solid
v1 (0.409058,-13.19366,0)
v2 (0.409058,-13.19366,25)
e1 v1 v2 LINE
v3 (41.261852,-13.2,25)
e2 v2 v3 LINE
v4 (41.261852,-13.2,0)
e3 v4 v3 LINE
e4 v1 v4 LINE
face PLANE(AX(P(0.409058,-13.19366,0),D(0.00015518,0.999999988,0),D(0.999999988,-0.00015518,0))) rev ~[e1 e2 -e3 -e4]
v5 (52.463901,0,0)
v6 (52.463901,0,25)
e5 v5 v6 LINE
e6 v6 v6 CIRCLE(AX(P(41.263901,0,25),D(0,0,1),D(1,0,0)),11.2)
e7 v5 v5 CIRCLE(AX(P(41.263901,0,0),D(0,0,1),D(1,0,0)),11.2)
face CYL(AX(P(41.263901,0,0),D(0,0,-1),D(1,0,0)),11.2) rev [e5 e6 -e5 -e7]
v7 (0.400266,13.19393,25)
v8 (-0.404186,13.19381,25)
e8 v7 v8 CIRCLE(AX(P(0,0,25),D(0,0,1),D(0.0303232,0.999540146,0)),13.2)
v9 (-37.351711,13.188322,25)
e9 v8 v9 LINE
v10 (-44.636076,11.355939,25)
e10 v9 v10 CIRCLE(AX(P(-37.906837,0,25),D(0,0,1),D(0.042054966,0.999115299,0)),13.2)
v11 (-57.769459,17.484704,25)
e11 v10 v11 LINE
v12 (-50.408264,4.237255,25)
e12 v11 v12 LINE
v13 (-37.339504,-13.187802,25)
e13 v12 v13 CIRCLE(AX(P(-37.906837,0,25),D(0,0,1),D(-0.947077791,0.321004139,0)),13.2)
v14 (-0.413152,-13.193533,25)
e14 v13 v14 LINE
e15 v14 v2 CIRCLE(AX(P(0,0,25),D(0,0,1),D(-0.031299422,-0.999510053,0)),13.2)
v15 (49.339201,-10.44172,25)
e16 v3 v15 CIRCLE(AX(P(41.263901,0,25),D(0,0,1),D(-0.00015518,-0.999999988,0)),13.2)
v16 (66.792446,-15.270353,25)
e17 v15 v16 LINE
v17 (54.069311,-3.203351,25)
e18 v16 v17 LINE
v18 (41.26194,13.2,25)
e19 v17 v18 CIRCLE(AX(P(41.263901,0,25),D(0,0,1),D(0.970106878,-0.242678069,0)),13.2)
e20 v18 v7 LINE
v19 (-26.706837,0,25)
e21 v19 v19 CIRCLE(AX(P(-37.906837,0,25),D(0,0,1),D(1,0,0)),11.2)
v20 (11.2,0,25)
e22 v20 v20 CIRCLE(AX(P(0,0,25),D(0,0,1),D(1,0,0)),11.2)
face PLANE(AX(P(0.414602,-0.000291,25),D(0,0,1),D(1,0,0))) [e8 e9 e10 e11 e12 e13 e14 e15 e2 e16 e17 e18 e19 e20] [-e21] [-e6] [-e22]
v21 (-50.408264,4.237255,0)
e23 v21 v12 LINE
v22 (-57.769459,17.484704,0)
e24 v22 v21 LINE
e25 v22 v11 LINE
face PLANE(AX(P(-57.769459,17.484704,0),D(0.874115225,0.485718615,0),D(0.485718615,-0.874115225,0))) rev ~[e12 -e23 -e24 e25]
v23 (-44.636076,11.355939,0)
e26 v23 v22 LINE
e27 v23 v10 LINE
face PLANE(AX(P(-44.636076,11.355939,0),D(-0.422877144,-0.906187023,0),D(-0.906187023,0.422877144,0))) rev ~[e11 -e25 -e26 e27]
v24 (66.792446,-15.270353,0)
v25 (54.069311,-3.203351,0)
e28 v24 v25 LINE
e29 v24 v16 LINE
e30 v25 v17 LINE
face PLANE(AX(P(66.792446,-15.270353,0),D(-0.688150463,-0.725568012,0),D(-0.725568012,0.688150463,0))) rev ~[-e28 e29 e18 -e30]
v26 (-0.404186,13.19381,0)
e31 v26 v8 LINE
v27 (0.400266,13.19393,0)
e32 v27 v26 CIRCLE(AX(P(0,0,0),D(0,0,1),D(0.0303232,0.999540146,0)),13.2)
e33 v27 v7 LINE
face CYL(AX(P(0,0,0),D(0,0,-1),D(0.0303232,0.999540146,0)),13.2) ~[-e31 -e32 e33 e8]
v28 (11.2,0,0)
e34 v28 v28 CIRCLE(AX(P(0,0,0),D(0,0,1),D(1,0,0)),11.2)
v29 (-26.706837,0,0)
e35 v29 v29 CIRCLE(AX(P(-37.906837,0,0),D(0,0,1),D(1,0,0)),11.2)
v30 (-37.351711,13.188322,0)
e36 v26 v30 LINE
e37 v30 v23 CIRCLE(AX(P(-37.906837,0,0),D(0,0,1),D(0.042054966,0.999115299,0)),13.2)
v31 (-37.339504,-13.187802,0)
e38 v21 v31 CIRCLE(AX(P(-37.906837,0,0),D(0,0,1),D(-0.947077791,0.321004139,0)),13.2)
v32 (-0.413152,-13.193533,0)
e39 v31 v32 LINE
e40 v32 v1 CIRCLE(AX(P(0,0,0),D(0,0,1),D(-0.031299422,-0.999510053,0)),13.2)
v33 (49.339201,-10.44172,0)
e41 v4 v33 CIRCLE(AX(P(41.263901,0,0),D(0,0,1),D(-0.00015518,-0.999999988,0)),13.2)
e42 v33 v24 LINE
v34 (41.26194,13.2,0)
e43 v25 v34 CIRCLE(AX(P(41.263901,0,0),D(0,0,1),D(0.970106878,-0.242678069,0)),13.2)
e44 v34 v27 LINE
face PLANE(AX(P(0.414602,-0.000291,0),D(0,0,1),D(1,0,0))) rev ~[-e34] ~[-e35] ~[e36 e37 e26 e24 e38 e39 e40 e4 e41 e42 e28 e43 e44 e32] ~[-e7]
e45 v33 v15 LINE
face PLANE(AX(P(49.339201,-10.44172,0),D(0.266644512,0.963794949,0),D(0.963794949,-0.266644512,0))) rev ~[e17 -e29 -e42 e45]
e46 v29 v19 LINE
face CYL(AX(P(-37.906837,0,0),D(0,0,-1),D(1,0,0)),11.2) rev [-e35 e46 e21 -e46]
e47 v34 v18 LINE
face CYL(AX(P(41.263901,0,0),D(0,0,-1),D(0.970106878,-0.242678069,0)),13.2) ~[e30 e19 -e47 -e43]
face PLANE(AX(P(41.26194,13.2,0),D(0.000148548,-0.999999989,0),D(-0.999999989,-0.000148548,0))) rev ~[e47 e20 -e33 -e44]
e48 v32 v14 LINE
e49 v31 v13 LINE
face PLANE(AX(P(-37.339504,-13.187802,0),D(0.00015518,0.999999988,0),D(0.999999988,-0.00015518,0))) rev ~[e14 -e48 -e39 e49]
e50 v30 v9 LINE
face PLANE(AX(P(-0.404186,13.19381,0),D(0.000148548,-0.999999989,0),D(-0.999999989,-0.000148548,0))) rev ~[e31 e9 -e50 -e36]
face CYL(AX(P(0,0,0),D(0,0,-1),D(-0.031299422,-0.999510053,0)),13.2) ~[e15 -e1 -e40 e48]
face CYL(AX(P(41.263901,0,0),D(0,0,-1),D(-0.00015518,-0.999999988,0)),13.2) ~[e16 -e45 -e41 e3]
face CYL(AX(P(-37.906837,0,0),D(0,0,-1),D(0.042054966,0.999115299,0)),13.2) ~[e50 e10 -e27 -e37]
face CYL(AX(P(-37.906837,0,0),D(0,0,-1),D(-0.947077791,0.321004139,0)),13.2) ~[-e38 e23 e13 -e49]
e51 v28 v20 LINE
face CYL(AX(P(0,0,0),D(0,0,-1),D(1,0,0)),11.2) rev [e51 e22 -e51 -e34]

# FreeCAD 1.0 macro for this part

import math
import FreeCAD as App
import Part
import Sketcher

V = App.Vector
Q = App.Units.Quantity

doc = App.newDocument("Part")
params = doc.addObject("Spreadsheet::Sheet", "Params")
for row, (alias, value) in enumerate([
    ("sketch1_diameter", "22.4 mm"),
    ("sketch1_radius", "13.2 mm"),
    ("pad1_length", "25 mm"),
], start=1):
    params.set(f"A{row}", alias)
    params.set(f"B{row}", "=" + value)
    params.setAlias(f"B{row}", alias)

body = doc.addObject("PartDesign::Body", "Body")

# Sketch on XY plane
sketch1 = doc.addObject("Sketcher::SketchObject", "Sketch")
body.addObject(sketch1)
sketch1.AttachmentSupport = (doc.XY_Plane, [""])
sketch1.MapMode = "FlatFace"
sketch1.addGeometry(Part.LineSegment(V(0.409058, -13.19366, 0), V(41.261852, -13.2, 0)), False)
sketch1.addGeometry(Part.ArcOfCircle(Part.Circle(V(41.263901, 0, 0), V(0, 0, 1), 13.2), math.radians(-90.008891), math.radians(-52.282752)), False)
sketch1.addGeometry(Part.LineSegment(V(49.339201, -10.44172, 0), V(66.792446, -15.270353, 0)), False)
sketch1.addGeometry(Part.LineSegment(V(66.792446, -15.270353, 0), V(54.069311, -3.203351, 0)), False)
sketch1.addGeometry(Part.ArcOfCircle(Part.Circle(V(41.263901, 0, 0), V(0, 0, 1), 13.2), math.radians(-14.044656), math.radians(90.008511)), False)
sketch1.addGeometry(Part.LineSegment(V(41.26194, 13.2, 0), V(0.400266, 13.19393, 0)), False)
sketch1.addGeometry(Part.ArcOfCircle(Part.Circle(V(0, 0, 0), V(0, 0, 1), 13.2), math.radians(88.262342), math.radians(91.75468)), False)
sketch1.addGeometry(Part.LineSegment(V(-0.404186, 13.19381, 0), V(-37.351711, 13.188322, 0)), False)
sketch1.addGeometry(Part.ArcOfCircle(Part.Circle(V(-37.906837, 0, 0), V(0, 0, 1), 13.2), math.radians(87.589717), math.radians(120.649897)), False)
sketch1.addGeometry(Part.LineSegment(V(-44.636076, 11.355939, 0), V(-57.769459, 17.484704, 0)), False)
sketch1.addGeometry(Part.LineSegment(V(-57.769459, 17.484704, 0), V(-50.408264, 4.237255, 0)), False)
sketch1.addGeometry(Part.ArcOfCircle(Part.Circle(V(-37.906837, 0, 0), V(0, 0, 1), 13.2), math.radians(161.276338), math.radians(272.463317)), False)
sketch1.addGeometry(Part.LineSegment(V(-37.339504, -13.187802, 0), V(-0.413152, -13.193533, 0)), False)
sketch1.addGeometry(Part.ArcOfCircle(Part.Circle(V(0, 0, 0), V(0, 0, 1), 13.2), math.radians(-91.793618), math.radians(-88.224165)), False)
sketch1.addGeometry(Part.Circle(V(-37.906837, 0, 0), V(0, 0, 1), 11.2), False)
sketch1.addGeometry(Part.Circle(V(0, 0, 0), V(0, 0, 1), 11.2), False)
sketch1.addGeometry(Part.Circle(V(41.263901, 0, 0), V(0, 0, 1), 11.2), False)
sketch1.addConstraint(Sketcher.Constraint("Tangent", 0, 2, 1, 1))
sketch1.addConstraint(Sketcher.Constraint("Coincident", 1, 2, 2, 1))
sketch1.addConstraint(Sketcher.Constraint("Coincident", 2, 2, 3, 1))
sketch1.addConstraint(Sketcher.Constraint("Coincident", 3, 2, 4, 1))
sketch1.addConstraint(Sketcher.Constraint("Tangent", 4, 2, 5, 1))
sketch1.addConstraint(Sketcher.Constraint("Coincident", 5, 2, 6, 1))
sketch1.addConstraint(Sketcher.Constraint("Coincident", 6, 2, 7, 1))
sketch1.addConstraint(Sketcher.Constraint("Coincident", 7, 2, 8, 1))
sketch1.addConstraint(Sketcher.Constraint("Coincident", 8, 2, 9, 1))
sketch1.addConstraint(Sketcher.Constraint("Coincident", 9, 2, 10, 1))
sketch1.addConstraint(Sketcher.Constraint("Coincident", 10, 2, 11, 1))
sketch1.addConstraint(Sketcher.Constraint("Coincident", 11, 2, 12, 1))
sketch1.addConstraint(Sketcher.Constraint("Coincident", 12, 2, 13, 1))
sketch1.addConstraint(Sketcher.Constraint("Coincident", 13, 2, 0, 1))
sketch1.addConstraint(Sketcher.Constraint("Coincident", 6, 3, -1, 1))
sketch1.addConstraint(Sketcher.Constraint("Coincident", 13, 3, -1, 1))
sketch1.addConstraint(Sketcher.Constraint("Coincident", 15, 3, -1, 1))
sketch1.addConstraint(Sketcher.Constraint("Coincident", 4, 3, 1, 3))
sketch1.addConstraint(Sketcher.Constraint("Coincident", 11, 3, 8, 3))
sketch1.addConstraint(Sketcher.Constraint("Coincident", 14, 3, 8, 3))
sketch1.addConstraint(Sketcher.Constraint("Coincident", 16, 3, 1, 3))
sketch1.addConstraint(Sketcher.Constraint("Equal", 1, 4))
sketch1.addConstraint(Sketcher.Constraint("Equal", 4, 6))
sketch1.addConstraint(Sketcher.Constraint("Equal", 6, 8))
sketch1.addConstraint(Sketcher.Constraint("Equal", 8, 11))
sketch1.addConstraint(Sketcher.Constraint("Equal", 11, 13))
sketch1.addConstraint(Sketcher.Constraint("Equal", 14, 15))
sketch1.addConstraint(Sketcher.Constraint("Equal", 15, 16))
sketch1.addConstraint(Sketcher.Constraint("PointOnObject", 1, 3, -1))
sketch1.addConstraint(Sketcher.Constraint("PointOnObject", 8, 3, -1))
sketch1.addConstraint(Sketcher.Constraint("Parallel", 5, 7))
sketch1.addConstraint(Sketcher.Constraint("Parallel", 0, 12))
sketch1.addConstraint(Sketcher.Constraint("Diameter", 14, Q("22.4 mm")))
sketch1.addConstraint(Sketcher.Constraint("Radius", 1, Q("13.2 mm")))
sketch1.addConstraint(Sketcher.Constraint("DistanceX", -1, 1, 1, 3, Q("41.263901 mm")))
sketch1.addConstraint(Sketcher.Constraint("DistanceX", -1, 1, 1, 2, Q("49.339201 mm")))
sketch1.addConstraint(Sketcher.Constraint("DistanceX", -1, 1, 3, 2, Q("54.069311 mm")))
sketch1.addConstraint(Sketcher.Constraint("DistanceY", -1, 1, 5, 2, Q("13.19393 mm")))
sketch1.addConstraint(Sketcher.Constraint("DistanceY", -1, 1, 6, 2, Q("13.19381 mm")))
sketch1.addConstraint(Sketcher.Constraint("DistanceX", 7, 2, -1, 1, Q("37.351711 mm")))
sketch1.addConstraint(Sketcher.Constraint("DistanceY", -1, 1, 8, 2, Q("11.355939 mm")))
sketch1.addConstraint(Sketcher.Constraint("DistanceX", 9, 2, -1, 1, Q("57.769459 mm")))
sketch1.addConstraint(Sketcher.Constraint("DistanceY", 13, 2, -1, 1, Q("13.19366 mm")))
sketch1.addConstraint(Sketcher.Constraint("DistanceX", 10, 2, 8, 2, Q("5.772188 mm")))
sketch1.addConstraint(Sketcher.Constraint("DistanceY", 10, 2, 9, 2, Q("13.247449 mm")))
sketch1.addConstraint(Sketcher.Constraint("DistanceX", 10, 2, 11, 2, Q("13.06876 mm")))
sketch1.addConstraint(Sketcher.Constraint("Distance", 2, Q("18.108878 mm")))
sketch1.addConstraint(Sketcher.Constraint("Distance", 3, Q("17.535413 mm")))
sketch1.setExpression("Constraints[32]", "Params.sketch1_diameter")
sketch1.setExpression("Constraints[33]", "Params.sketch1_radius")
pad1 = doc.addObject("PartDesign::Pad", "Pad")
body.addObject(pad1)
pad1.Profile = sketch1
pad1.setExpression("Length", "Params.pad1_length")

doc.recompute()
